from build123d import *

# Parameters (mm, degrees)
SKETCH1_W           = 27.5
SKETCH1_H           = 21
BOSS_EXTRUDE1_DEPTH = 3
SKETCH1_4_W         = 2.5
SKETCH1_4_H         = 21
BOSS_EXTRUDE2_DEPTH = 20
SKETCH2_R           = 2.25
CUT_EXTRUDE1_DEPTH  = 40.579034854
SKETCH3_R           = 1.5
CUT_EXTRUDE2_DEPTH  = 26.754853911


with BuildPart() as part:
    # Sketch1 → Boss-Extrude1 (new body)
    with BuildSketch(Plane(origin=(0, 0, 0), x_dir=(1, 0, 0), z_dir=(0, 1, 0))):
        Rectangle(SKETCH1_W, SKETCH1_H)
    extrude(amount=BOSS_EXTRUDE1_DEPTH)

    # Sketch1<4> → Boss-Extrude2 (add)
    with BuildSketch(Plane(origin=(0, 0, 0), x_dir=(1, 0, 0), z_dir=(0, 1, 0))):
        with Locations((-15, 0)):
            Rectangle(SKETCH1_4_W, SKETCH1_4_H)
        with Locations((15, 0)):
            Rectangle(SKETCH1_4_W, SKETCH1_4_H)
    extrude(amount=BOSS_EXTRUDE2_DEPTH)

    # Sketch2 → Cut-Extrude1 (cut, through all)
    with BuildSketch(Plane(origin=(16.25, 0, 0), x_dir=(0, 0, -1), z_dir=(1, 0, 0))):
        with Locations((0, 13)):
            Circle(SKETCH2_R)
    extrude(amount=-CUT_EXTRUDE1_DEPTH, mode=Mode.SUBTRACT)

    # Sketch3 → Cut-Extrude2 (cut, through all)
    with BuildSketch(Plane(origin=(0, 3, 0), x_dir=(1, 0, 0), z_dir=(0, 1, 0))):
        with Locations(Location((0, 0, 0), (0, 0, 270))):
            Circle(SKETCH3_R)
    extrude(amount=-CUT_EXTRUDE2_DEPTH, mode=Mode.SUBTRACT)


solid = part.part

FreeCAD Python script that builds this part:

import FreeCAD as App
import Part
import Sketcher
from FreeCAD import Vector


def add_polygon(sketch, points):
    """Adds a closed chain of lines whose ends are joined by coincident constraints."""
    first, n = sketch.GeometryCount, len(points)
    for a, b in zip(points, points[1:] + points[:1]):
        sketch.addGeometry(Part.LineSegment(App.Vector(*a, 0), App.Vector(*b, 0)), False)
    for i in range(n):
        sketch.addConstraint(Sketcher.Constraint("Coincident", first + i, 2, first + (i + 1) % n, 1))

doc = App.newDocument("Part")
params = doc.addObject("Spreadsheet::Sheet", "Params")
for row, (alias, value) in enumerate([
    ("sketch1_height", "21 mm"),
    ("sketch1_width", "27.5 mm"),
    ("pad1_length", "3 mm"),
    ("sketch2_height", "21 mm"),
    ("sketch2_width", "2.5 mm"),
    ("pad2_length", "20 mm"),
    ("sketch3_diameter", "4.5 mm"),
    ("sketch4_diameter", "3 mm"),
], start=1):
    params.set(f"A{row}", alias)
    params.set(f"B{row}", "=" + value)
    params.setAlias(f"B{row}", alias)

body = doc.addObject("PartDesign::Body", "Body")

# Sketch on XZ plane
sketch1 = body.newObject("Sketcher::SketchObject", "Sketch")
sketch1.AttachmentSupport = (doc.getObject("XZ_Plane"), [""])
sketch1.MapMode = "FlatFace"
add_polygon(sketch1, [(-13.75, -10.5), (-13.75, 10.5), (13.75, 10.5), (13.75, -10.5)])  # lines 0-3
sketch1.addConstraint([
    Sketcher.Constraint("Vertical", 0),
    Sketcher.Constraint("Horizontal", 1),
    Sketcher.Constraint("Vertical", 2),
    Sketcher.Constraint("Horizontal", 3),
    Sketcher.Constraint("Symmetric", 0, 2, 2, 2, -1, 1),
    Sketcher.Constraint("DistanceY", 0, 1, 0, 2, 21.0),
    Sketcher.Constraint("DistanceX", 1, 1, 1, 2, 27.5),
])
sketch1.setExpression("Constraints[9]", "Params.sketch1_height")
sketch1.setExpression("Constraints[10]", "Params.sketch1_width")
pad1 = body.newObject("PartDesign::Pad", "Pad")
pad1.Profile = sketch1
pad1.setExpression("Length", "Params.pad1_length")
pad1.Reversed = True

# Sketch on XZ plane
sketch2 = body.newObject("Sketcher::SketchObject", "Sketch001")
sketch2.AttachmentSupport = (doc.getObject("XZ_Plane"), [""])
sketch2.MapMode = "FlatFace"
add_polygon(sketch2, [(-16.25, -10.5), (-16.25, 10.5), (-13.75, 10.5), (-13.75, -10.5)])  # lines 0-3
add_polygon(sketch2, [(13.75, -10.5), (13.75, 10.5), (16.25, 10.5), (16.25, -10.5)])  # lines 4-7
sketch2.addConstraint([
    Sketcher.Constraint("Vertical", 0),
    Sketcher.Constraint("Horizontal", 1),
    Sketcher.Constraint("Vertical", 2),
    Sketcher.Constraint("Horizontal", 3),
    Sketcher.Constraint("Vertical", 4),
    Sketcher.Constraint("Horizontal", 5),
    Sketcher.Constraint("Vertical", 6),
    Sketcher.Constraint("Horizontal", 7),
    Sketcher.Constraint("Symmetric", 2, 2, 4, 2, -1, 1),
    Sketcher.Constraint("Symmetric", 0, 2, 6, 2, -1, 1),
    Sketcher.Constraint("Horizontal", 1, 2, 4, 2),
    Sketcher.Constraint("DistanceY", 0, 1, 0, 2, 21.0),
    Sketcher.Constraint("DistanceX", 1, 1, 1, 2, 2.5),
    Sketcher.Constraint("DistanceX", 0, 2, 4, 2, 30.0),
])
sketch2.setExpression("Constraints[19]", "Params.sketch2_height")
sketch2.setExpression("Constraints[20]", "Params.sketch2_width")
pad2 = body.newObject("PartDesign::Pad", "Pad001")
pad2.Profile = sketch2
pad2.setExpression("Length", "Params.pad2_length")
pad2.Reversed = True

# Sketch on YZ plane
sketch3 = body.newObject("Sketcher::SketchObject", "Sketch002")
sketch3.AttachmentSupport = (doc.getObject("YZ_Plane"), [""])
sketch3.MapMode = "FlatFace"
sketch3.AttachmentOffset = App.Placement(Vector(0, 0, 16.25), App.Rotation())
sketch3.addGeometry(Part.Circle(Vector(13, 0, 0), Vector(0, 0, 1), 2.25), False)
sketch3.addConstraint([
    Sketcher.Constraint("PointOnObject", 0, 3, -1),
    Sketcher.Constraint("Diameter", 0, 4.5),
    Sketcher.Constraint("DistanceX", -1, 1, 0, 3, 13.0),
])
sketch3.setExpression("Constraints[1]", "Params.sketch3_diameter")
pocket1 = body.newObject("PartDesign::Pocket", "Pocket")
pocket1.Profile = sketch3
pocket1.Type = "ThroughAll"

# Sketch on XZ plane
sketch4 = body.newObject("Sketcher::SketchObject", "Sketch003")
sketch4.AttachmentSupport = (doc.getObject("XZ_Plane"), [""])
sketch4.MapMode = "FlatFace"
sketch4.AttachmentOffset = App.Placement(Vector(0, 0, -3), App.Rotation())
sketch4.addGeometry(Part.Circle(Vector(0, 0, 0), Vector(0, 0, 1), 1.5), False)
sketch4.addConstraint([
    Sketcher.Constraint("Coincident", 0, 3, -1, 1),
    Sketcher.Constraint("Diameter", 0, 3.0),
])
sketch4.setExpression("Constraints[1]", "Params.sketch4_diameter")
pocket2 = body.newObject("PartDesign::Pocket", "Pocket001")
pocket2.Profile = sketch4
pocket2.Type = "ThroughAll"
pocket2.Reversed = True

doc.recompute()
